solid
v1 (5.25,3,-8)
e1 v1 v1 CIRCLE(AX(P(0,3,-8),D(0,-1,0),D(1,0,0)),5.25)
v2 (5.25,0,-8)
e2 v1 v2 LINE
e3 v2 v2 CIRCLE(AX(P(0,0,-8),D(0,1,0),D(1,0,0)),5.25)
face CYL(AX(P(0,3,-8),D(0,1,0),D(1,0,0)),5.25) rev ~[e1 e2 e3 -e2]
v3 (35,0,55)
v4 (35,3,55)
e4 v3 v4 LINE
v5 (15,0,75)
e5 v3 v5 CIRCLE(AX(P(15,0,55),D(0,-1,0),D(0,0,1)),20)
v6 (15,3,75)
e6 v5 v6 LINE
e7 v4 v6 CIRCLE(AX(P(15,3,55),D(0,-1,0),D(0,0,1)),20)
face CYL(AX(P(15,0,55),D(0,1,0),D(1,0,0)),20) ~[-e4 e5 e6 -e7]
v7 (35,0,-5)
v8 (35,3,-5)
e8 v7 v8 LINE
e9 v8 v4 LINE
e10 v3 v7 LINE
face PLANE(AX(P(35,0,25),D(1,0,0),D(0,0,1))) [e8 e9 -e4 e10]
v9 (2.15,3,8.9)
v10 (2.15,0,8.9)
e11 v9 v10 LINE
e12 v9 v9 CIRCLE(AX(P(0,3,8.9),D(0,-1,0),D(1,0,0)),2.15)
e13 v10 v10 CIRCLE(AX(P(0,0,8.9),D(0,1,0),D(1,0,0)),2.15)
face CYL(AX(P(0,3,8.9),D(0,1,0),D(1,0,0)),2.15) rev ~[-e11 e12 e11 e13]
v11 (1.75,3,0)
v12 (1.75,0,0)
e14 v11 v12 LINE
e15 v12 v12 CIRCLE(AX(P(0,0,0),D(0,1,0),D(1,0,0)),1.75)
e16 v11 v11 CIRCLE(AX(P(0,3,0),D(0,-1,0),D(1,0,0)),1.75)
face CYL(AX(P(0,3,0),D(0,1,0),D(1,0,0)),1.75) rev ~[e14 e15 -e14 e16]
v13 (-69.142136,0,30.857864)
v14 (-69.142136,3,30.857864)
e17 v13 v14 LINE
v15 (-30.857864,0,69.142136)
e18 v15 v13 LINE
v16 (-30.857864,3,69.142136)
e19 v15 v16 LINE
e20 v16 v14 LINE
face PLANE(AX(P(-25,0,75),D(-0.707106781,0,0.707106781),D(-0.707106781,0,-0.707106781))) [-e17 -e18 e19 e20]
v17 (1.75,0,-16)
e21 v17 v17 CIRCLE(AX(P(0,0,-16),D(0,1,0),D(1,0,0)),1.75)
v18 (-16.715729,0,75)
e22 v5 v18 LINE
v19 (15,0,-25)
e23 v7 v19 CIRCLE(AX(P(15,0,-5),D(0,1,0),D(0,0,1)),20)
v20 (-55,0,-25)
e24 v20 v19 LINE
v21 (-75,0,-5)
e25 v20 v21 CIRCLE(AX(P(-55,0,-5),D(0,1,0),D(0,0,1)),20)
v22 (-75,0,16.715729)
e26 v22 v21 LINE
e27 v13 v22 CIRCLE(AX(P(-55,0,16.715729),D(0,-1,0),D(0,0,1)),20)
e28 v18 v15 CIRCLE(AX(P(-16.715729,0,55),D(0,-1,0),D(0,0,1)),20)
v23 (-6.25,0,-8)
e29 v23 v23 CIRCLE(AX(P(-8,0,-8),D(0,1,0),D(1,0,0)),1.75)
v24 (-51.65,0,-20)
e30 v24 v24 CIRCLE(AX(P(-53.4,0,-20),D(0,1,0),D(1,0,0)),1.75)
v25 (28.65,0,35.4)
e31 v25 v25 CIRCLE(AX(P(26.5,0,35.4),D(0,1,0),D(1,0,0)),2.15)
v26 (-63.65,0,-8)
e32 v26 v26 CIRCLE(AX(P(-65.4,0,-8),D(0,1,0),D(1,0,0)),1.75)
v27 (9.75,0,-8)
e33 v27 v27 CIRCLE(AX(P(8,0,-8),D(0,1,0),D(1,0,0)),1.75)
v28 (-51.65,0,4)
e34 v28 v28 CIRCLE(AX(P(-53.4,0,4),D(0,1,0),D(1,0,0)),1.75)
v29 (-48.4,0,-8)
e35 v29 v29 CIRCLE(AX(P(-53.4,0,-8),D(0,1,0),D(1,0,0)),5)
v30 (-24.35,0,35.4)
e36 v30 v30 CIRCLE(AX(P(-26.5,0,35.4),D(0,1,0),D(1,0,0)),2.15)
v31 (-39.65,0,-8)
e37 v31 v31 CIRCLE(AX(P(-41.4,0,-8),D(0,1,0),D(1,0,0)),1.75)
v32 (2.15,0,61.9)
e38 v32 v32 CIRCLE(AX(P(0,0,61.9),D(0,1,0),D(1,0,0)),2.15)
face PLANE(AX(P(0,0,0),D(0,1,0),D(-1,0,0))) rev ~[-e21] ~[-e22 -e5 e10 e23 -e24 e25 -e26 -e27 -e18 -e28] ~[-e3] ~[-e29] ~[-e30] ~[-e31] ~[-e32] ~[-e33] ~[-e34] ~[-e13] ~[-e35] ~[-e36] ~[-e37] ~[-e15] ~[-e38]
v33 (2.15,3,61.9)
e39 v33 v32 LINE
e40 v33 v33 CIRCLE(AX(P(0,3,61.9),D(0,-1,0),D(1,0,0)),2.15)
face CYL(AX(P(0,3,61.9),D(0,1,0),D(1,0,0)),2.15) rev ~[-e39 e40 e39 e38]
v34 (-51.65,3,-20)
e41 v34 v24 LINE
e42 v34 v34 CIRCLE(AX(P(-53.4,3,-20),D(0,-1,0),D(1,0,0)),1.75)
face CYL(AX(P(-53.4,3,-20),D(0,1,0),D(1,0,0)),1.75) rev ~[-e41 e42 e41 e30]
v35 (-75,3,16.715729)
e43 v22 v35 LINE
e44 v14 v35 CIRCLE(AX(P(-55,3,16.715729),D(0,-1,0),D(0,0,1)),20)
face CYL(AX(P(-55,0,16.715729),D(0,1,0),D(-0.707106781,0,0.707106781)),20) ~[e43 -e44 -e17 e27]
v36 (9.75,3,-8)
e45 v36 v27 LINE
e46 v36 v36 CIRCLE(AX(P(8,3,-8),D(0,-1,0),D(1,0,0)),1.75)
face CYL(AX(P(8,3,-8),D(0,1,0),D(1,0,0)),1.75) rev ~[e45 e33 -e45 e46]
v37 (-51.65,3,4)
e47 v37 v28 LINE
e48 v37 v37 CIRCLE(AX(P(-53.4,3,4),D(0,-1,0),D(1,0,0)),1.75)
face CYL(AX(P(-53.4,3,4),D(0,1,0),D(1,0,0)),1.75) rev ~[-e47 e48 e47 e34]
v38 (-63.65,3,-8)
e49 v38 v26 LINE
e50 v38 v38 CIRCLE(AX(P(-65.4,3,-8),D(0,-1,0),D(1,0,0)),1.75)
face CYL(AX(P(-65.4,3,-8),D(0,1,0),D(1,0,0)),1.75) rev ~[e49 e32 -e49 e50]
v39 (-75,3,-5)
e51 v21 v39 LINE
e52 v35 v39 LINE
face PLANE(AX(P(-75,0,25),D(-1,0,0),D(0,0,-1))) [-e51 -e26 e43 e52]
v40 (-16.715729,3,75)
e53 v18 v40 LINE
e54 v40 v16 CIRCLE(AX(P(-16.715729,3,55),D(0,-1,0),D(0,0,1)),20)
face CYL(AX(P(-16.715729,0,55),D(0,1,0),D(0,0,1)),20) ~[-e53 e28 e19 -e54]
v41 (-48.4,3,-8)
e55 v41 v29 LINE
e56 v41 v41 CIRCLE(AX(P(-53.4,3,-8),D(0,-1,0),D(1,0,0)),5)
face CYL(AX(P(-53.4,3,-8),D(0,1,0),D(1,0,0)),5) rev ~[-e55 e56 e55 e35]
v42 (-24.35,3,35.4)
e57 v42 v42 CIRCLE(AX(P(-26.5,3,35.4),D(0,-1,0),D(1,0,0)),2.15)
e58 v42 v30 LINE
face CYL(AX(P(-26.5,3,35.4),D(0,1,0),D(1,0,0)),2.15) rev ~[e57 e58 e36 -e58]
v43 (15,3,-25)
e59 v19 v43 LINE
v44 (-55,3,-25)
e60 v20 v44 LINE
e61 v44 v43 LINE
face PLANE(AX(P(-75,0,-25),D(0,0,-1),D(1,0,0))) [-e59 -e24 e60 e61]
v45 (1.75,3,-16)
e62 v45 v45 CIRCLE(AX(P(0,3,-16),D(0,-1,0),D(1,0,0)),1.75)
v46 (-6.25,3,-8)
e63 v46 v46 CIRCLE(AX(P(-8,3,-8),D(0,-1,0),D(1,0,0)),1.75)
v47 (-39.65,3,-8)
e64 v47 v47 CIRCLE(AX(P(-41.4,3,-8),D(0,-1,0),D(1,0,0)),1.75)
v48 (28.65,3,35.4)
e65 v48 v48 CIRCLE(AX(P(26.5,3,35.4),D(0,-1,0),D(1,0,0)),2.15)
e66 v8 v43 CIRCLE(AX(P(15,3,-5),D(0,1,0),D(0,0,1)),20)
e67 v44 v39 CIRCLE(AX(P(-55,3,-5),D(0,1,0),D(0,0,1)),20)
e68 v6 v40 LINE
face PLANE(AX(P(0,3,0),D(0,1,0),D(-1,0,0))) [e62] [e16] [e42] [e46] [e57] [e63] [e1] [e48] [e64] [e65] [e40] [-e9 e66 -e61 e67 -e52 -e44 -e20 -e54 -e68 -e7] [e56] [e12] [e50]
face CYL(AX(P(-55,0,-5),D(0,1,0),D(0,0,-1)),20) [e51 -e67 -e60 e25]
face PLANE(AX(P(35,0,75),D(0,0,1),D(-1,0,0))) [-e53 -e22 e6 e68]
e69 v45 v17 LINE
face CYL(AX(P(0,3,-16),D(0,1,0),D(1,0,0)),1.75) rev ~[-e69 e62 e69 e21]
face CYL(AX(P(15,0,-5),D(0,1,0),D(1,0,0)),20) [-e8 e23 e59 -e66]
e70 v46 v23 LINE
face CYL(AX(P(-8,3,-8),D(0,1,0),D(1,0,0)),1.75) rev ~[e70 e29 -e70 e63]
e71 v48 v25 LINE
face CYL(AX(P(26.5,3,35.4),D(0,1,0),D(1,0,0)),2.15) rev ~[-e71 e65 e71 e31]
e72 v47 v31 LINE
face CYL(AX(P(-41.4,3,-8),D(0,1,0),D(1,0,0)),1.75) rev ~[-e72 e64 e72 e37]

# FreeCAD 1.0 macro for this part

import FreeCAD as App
import Part
import Sketcher


def edges_at(feature, points):
    """Names of the edges that pass closest to the given points."""
    edges = feature.Shape.Edges
    near = lambda p: min(range(len(edges)), key=lambda i: edges[i].distToShape(Part.Vertex(*p))[0])
    return sorted({f"Edge{near(p) + 1}" for p in points})

doc = App.newDocument("Part")
body = doc.addObject("PartDesign::Body", "Body")

# Sketch on XZ plane
sketch1 = body.newObject("Sketcher::SketchObject", "Sketch")
sketch1.AttachmentSupport = (doc.getObject("XZ_Plane"), [""])
sketch1.MapMode = "FlatFace"
sketch1.addGeometry(Part.LineSegment(App.Vector(35, 75, 0), App.Vector(35, -25, 0)), False)
sketch1.addGeometry(Part.LineSegment(App.Vector(35, -25, 0), App.Vector(-75, -25, 0)), False)
sketch1.addGeometry(Part.LineSegment(App.Vector(-75, -25, 0), App.Vector(-75, 25, 0)), False)
sketch1.addGeometry(Part.LineSegment(App.Vector(-75, 25, 0), App.Vector(-25, 75, 0)), False)
sketch1.addGeometry(Part.LineSegment(App.Vector(-25, 75, 0), App.Vector(35, 75, 0)), False)
sketch1.addConstraint(Sketcher.Constraint("Coincident", 0, 2, 1, 1))
sketch1.addConstraint(Sketcher.Constraint("Coincident", 1, 2, 2, 1))
sketch1.addConstraint(Sketcher.Constraint("Coincident", 2, 2, 3, 1))
sketch1.addConstraint(Sketcher.Constraint("Coincident", 3, 2, 4, 1))
sketch1.addConstraint(Sketcher.Constraint("Coincident", 4, 2, 0, 1))
sketch1.addConstraint(Sketcher.Constraint("Vertical", 0))
sketch1.addConstraint(Sketcher.Constraint("Horizontal", 1))
sketch1.addConstraint(Sketcher.Constraint("Vertical", 2))
sketch1.addConstraint(Sketcher.Constraint("Horizontal", 4))
sketch1.addConstraint(Sketcher.Constraint("DistanceX", 4, 1, 4, 2, 60.0))
sketch1.addConstraint(Sketcher.Constraint("DistanceY", 2, 1, 2, 2, 50.0))
sketch1.addConstraint(Sketcher.Constraint("DistanceX", 2, 2, 3, 2, 50.0))
sketch1.addConstraint(Sketcher.Constraint("DistanceY", 2, 2, 3, 2, 50.0))
sketch1.addConstraint(Sketcher.Constraint("DistanceX", -1, 1, 0, 2, 35.0))
sketch1.addConstraint(Sketcher.Constraint("DistanceY", 0, 2, -1, 1, 25.0))
pad1 = body.newObject("PartDesign::Pad", "Pad")
pad1.Profile = sketch1
pad1.Length = 3
pad1.Reversed = True

# Sketch on XZ plane
sketch2 = body.newObject("Sketcher::SketchObject", "Sketch001")
sketch2.AttachmentSupport = (doc.getObject("XZ_Plane"), [""])
sketch2.MapMode = "FlatFace"
sketch2.AttachmentOffset = App.Placement(App.Vector(0, 0, -3), App.Rotation())
sketch2.addGeometry(Part.Circle(App.Vector(0, -16, 0), App.Vector(0, 0, 1), 1.8), False)
sketch2.addGeometry(Part.Circle(App.Vector(-41.4, -8, 0), App.Vector(0, 0, 1), 1.8), False)
sketch2.addGeometry(Part.Circle(App.Vector(-8, -8, 0), App.Vector(0, 0, 1), 1.8), False)
sketch2.addGeometry(Part.Circle(App.Vector(0, -8, 0), App.Vector(0, 0, 1), 5.2), False)
sketch2.addGeometry(Part.Circle(App.Vector(8, -8, 0), App.Vector(0, 0, 1), 1.8), False)
sketch2.addGeometry(Part.Circle(App.Vector(0, 0, 0), App.Vector(0, 0, 1), 1.8), False)
sketch2.addGeometry(Part.Circle(App.Vector(-53.4, -20, 0), App.Vector(0, 0, 1), 1.8), False)
sketch2.addGeometry(Part.Circle(App.Vector(-53.4, 4, 0), App.Vector(0, 0, 1), 1.8), False)
sketch2.addGeometry(Part.Circle(App.Vector(-53.4, -8, 0), App.Vector(0, 0, 1), 5), False)
sketch2.addGeometry(Part.Circle(App.Vector(-65.4, -8, 0), App.Vector(0, 0, 1), 1.8), False)
sketch2.addConstraint(Sketcher.Constraint("Coincident", 5, 3, -1, 1))
sketch2.addConstraint(Sketcher.Constraint("Equal", 0, 1))
sketch2.addConstraint(Sketcher.Constraint("Equal", 1, 2))
sketch2.addConstraint(Sketcher.Constraint("Equal", 2, 4))
sketch2.addConstraint(Sketcher.Constraint("Equal", 4, 5))
sketch2.addConstraint(Sketcher.Constraint("Equal", 5, 6))
sketch2.addConstraint(Sketcher.Constraint("Equal", 6, 7))
sketch2.addConstraint(Sketcher.Constraint("Equal", 7, 9))
sketch2.addConstraint(Sketcher.Constraint("Symmetric", 2, 3, 4, 3, -2))
sketch2.addConstraint(Sketcher.Constraint("PointOnObject", 0, 3, -2))
sketch2.addConstraint(Sketcher.Constraint("PointOnObject", 3, 3, -2))
sketch2.addConstraint(Sketcher.Constraint("Horizontal", 1, 3, 2, 3))
sketch2.addConstraint(Sketcher.Constraint("Horizontal", 2, 3, 3, 3))
sketch2.addConstraint(Sketcher.Constraint("Horizontal", 4, 3, 8, 3))
sketch2.addConstraint(Sketcher.Constraint("Horizontal", 8, 3, 9, 3))
sketch2.addConstraint(Sketcher.Constraint("Vertical", 6, 3, 7, 3))
sketch2.addConstraint(Sketcher.Constraint("Vertical", 7, 3, 8, 3))
sketch2.addConstraint(Sketcher.Constraint("Diameter", 8, 10.0))
sketch2.addConstraint(Sketcher.Constraint("Diameter", 0, 3.5))
sketch2.addConstraint(Sketcher.Constraint("Diameter", 3, 10.5))
sketch2.addConstraint(Sketcher.Constraint("DistanceY", 6, 3, 7, 3, 24.0))
sketch2.addConstraint(Sketcher.Constraint("DistanceX", 9, 3, 1, 3, 24.0))
sketch2.addConstraint(Sketcher.Constraint("DistanceX", 6, 3, -1, 1, 53.4))
sketch2.addConstraint(Sketcher.Constraint("DistanceY", 0, 3, -1, 1, 16.0))
sketch2.addConstraint(Sketcher.Constraint("DistanceY", 1, 3, -1, 1, 8.0))
sketch2.addConstraint(Sketcher.Constraint("DistanceX", 2, 3, -1, 1, 8.0))
sketch2.addConstraint(Sketcher.Constraint("DistanceY", 6, 3, -1, 1, 20.0))
sketch2.addConstraint(Sketcher.Constraint("DistanceX", 6, 3, 1, 3, 12.0))
pocket1 = body.newObject("PartDesign::Pocket", "Pocket")
pocket1.Profile = sketch2
pocket1.Type = "ThroughAll"
pocket1.Reversed = True
doc.recompute()

fillet = body.newObject("PartDesign::Fillet", "Fillet")
fillet.Base = (pocket1, edges_at(pocket1, [
    (35, 1.5, -25),
    (35, 1.5, 75),
    (-25, 1.5, 75),
    (-75, 1.5, 25),
    (-75, 1.5, -25),
]))
fillet.Radius = 20

# Sketch on XZ plane
sketch3 = body.newObject("Sketcher::SketchObject", "Sketch002")
sketch3.AttachmentSupport = (doc.getObject("XZ_Plane"), [""])
sketch3.MapMode = "FlatFace"
sketch3.AttachmentOffset = App.Placement(App.Vector(0, 0, -3), App.Rotation())
sketch3.addGeometry(Part.Circle(App.Vector(0, 61.9, 0), App.Vector(0, 0, 1), 2.1), False)
sketch3.addGeometry(Part.Circle(App.Vector(26.5, 35.4, 0), App.Vector(0, 0, 1), 2.1), False)
sketch3.addGeometry(Part.Circle(App.Vector(-26.5, 35.4, 0), App.Vector(0, 0, 1), 2.1), False)
sketch3.addGeometry(Part.Circle(App.Vector(0, 8.9, 0), App.Vector(0, 0, 1), 2.1), False)
sketch3.addConstraint(Sketcher.Constraint("Equal", 0, 1))
sketch3.addConstraint(Sketcher.Constraint("Equal", 1, 2))
sketch3.addConstraint(Sketcher.Constraint("Equal", 2, 3))
sketch3.addConstraint(Sketcher.Constraint("Symmetric", 1, 3, 2, 3, -2))
sketch3.addConstraint(Sketcher.Constraint("PointOnObject", 0, 3, -2))
sketch3.addConstraint(Sketcher.Constraint("PointOnObject", 3, 3, -2))
sketch3.addConstraint(Sketcher.Constraint("Diameter", 0, 4.3))
sketch3.addConstraint(Sketcher.Constraint("DistanceX", 2, 3, 1, 3, 53.0))
sketch3.addConstraint(Sketcher.Constraint("DistanceY", 3, 3, 0, 3, 53.0))
sketch3.addConstraint(Sketcher.Constraint("DistanceY", -1, 1, 0, 3, 61.9))
sketch3.addConstraint(Sketcher.Constraint("DistanceY", -1, 1, 1, 3, 35.4))
pocket2 = body.newObject("PartDesign::Pocket", "Pocket001")
pocket2.Profile = sketch3
pocket2.Type = "ThroughAll"
pocket2.Reversed = True

doc.recompute()
